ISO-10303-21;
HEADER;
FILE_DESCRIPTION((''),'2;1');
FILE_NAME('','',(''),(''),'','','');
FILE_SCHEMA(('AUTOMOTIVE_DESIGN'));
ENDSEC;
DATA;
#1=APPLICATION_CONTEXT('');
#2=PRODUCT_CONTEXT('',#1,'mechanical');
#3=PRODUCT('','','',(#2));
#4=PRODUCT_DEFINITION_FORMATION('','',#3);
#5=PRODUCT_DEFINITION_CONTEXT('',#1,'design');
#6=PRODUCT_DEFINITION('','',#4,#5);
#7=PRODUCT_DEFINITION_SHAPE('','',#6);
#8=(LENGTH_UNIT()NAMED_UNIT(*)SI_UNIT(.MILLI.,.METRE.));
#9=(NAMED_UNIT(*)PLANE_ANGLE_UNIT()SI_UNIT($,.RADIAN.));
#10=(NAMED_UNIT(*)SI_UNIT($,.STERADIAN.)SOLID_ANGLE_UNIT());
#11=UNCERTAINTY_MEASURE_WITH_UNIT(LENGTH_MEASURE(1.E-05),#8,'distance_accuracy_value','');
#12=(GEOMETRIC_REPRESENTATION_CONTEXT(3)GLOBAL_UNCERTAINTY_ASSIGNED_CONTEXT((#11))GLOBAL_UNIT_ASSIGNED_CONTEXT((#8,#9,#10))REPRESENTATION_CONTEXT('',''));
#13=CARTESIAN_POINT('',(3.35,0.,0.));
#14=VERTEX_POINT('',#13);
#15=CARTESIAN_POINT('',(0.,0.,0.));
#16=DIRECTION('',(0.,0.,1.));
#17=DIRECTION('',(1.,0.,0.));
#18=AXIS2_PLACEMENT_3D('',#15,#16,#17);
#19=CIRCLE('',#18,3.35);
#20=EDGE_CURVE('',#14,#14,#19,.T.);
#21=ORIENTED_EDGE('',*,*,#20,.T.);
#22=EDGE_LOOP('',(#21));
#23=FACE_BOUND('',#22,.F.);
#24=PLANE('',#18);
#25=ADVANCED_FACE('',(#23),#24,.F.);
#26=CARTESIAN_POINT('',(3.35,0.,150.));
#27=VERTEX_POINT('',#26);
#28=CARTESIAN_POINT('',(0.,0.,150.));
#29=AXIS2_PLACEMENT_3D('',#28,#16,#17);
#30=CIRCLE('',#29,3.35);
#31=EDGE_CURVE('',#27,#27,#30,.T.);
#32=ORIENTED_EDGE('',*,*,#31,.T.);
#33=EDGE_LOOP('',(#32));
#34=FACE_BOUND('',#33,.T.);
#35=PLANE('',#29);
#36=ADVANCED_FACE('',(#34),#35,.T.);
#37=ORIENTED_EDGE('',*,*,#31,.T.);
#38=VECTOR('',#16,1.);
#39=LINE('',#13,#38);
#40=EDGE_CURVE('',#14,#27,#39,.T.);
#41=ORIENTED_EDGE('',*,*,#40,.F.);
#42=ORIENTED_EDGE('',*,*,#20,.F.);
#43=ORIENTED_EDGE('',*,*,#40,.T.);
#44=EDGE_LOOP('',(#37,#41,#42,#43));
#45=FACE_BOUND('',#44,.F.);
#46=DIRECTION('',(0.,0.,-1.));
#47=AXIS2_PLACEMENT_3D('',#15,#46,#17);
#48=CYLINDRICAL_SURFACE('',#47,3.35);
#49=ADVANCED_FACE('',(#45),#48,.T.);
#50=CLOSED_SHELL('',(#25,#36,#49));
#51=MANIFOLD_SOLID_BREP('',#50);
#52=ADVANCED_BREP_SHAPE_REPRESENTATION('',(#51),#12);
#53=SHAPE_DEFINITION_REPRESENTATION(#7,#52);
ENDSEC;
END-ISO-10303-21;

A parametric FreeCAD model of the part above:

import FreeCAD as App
import Part
import Sketcher
from FreeCAD import Vector
Q = App.Units.Quantity

doc = App.newDocument("Part")
body = doc.addObject("PartDesign::Body", "Body")

sketch1 = body.newObject("Sketcher::SketchObject", "Sketch")
sketch1.AttachmentSupport = (doc.getObject("XY_Plane"), [""])
sketch1.MapMode = "FlatFace"
sketch1.addGeometry(Part.Circle(Vector(0, 0, 0), Vector(0, 0, 1), 3.4), False)
sketch1.addConstraint([
    Sketcher.Constraint("Coincident", 0, 3, -1, 1),
    Sketcher.Constraint("Diameter", 0, Q("6.7 mm")),
])
pad1 = body.newObject("PartDesign::Pad", "Pad")
pad1.Profile = sketch1
pad1.Length = 150

doc.recompute()
